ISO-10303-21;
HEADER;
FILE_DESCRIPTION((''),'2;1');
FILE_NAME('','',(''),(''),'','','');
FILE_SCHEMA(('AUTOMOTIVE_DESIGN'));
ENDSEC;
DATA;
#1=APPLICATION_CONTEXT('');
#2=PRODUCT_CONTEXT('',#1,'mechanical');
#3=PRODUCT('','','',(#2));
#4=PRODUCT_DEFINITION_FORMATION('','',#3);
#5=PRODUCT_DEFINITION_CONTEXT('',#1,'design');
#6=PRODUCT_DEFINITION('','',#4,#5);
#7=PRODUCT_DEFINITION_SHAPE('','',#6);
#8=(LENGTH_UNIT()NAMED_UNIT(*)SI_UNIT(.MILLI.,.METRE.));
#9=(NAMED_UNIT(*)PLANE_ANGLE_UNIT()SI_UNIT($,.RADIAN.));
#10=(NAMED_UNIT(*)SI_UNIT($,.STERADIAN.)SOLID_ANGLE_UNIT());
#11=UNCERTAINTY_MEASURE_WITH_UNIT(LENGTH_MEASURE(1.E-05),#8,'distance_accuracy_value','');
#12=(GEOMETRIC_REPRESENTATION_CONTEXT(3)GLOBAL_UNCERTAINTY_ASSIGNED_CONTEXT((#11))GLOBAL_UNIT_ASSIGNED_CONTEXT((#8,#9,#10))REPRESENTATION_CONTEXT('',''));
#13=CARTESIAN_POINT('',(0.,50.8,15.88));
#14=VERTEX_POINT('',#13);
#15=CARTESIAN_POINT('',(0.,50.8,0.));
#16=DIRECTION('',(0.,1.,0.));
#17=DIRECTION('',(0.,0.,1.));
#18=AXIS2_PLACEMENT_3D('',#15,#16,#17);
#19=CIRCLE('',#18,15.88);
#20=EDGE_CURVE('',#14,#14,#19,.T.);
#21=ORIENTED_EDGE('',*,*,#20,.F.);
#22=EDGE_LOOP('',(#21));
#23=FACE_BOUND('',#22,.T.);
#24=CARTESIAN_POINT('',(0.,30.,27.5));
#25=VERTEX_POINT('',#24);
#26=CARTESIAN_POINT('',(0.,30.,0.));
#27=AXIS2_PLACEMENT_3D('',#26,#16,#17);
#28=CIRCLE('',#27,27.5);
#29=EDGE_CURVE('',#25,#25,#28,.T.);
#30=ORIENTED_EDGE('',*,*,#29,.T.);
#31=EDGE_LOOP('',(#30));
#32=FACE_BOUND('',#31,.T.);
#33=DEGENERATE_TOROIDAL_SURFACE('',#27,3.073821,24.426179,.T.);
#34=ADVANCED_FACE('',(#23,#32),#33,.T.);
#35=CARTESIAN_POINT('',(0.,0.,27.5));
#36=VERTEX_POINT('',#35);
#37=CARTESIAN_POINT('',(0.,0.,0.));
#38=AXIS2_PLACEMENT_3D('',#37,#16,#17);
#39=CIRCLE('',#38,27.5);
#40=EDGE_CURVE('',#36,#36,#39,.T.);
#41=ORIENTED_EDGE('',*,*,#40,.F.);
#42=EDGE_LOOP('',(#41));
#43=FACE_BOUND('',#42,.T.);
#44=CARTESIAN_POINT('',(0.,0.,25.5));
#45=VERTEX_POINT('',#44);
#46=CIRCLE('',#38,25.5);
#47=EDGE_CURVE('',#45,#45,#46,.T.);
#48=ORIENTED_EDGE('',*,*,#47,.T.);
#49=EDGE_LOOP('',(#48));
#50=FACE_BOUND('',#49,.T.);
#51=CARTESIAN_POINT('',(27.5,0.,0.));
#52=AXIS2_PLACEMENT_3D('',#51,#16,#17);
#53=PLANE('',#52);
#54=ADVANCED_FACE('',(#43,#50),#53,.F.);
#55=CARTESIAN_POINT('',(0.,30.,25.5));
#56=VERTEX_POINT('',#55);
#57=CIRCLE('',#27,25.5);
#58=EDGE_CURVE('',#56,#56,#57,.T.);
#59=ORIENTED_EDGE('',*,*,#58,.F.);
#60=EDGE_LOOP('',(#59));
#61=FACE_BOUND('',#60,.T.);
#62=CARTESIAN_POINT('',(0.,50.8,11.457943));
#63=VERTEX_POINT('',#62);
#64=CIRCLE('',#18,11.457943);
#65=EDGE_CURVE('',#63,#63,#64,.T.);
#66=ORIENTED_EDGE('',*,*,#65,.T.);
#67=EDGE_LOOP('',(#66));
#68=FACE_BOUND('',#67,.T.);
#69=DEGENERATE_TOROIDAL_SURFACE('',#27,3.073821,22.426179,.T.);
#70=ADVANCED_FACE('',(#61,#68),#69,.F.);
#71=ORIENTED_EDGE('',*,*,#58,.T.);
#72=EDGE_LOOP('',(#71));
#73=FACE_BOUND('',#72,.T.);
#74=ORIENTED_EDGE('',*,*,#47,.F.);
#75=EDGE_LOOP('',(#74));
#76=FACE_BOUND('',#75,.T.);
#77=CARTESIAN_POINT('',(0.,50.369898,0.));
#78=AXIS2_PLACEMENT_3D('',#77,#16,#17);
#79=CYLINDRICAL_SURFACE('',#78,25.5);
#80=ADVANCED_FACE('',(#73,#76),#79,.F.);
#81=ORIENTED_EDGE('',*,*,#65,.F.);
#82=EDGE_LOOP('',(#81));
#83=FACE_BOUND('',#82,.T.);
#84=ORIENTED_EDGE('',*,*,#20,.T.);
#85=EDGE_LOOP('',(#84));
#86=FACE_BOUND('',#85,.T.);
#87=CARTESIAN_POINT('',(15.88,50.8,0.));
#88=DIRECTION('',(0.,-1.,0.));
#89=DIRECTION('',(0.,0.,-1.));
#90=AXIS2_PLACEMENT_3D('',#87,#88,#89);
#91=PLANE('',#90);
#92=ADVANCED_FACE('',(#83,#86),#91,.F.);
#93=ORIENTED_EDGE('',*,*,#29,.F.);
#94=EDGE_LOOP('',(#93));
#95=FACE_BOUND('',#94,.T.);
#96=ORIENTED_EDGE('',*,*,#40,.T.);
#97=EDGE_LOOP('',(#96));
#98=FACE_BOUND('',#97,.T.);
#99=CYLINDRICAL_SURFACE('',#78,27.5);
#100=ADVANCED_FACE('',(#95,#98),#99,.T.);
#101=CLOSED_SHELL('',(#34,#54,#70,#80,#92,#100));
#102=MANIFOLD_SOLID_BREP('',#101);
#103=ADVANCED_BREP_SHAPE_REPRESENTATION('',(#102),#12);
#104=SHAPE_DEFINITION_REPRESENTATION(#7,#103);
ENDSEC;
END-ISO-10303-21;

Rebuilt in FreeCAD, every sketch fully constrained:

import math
import FreeCAD as App
import Part
import Sketcher
from FreeCAD import Vector
Q = App.Units.Quantity

doc = App.newDocument("Part")
body = doc.addObject("PartDesign::Body", "Body")

# Sketch on XY plane
sketch1 = body.newObject("Sketcher::SketchObject", "Sketch")
sketch1.AttachmentSupport = (doc.getObject("XY_Plane"), [""])
sketch1.MapMode = "FlatFace"
sketch1.addGeometry(Part.LineSegment(Vector(27.5, 0, 0), Vector(27.5, 30, 0)), False)
sketch1.addGeometry(Part.ArcOfCircle(Part.Circle(Vector(3.1, 30, 0), Vector(0, 0, 1), 24.4), math.radians(0), math.radians(58)), False)
sketch1.addGeometry(Part.LineSegment(Vector(15.9, 50.8, 0), Vector(11.5, 50.8, 0)), False)
sketch1.addGeometry(Part.ArcOfCircle(Part.Circle(Vector(3.1, 30, 0), Vector(0, 0, 1), 22.4), math.radians(0), math.radians(68)), False)
sketch1.addGeometry(Part.LineSegment(Vector(25.5, 30, 0), Vector(25.5, 0, 0)), False)
sketch1.addGeometry(Part.LineSegment(Vector(25.5, 0, 0), Vector(27.5, 0, 0)), False)
sketch1.addConstraint(Sketcher.Constraint("Tangent", 0, 2, 1, 1))
sketch1.addConstraint(Sketcher.Constraint("Coincident", 1, 2, 2, 1))
sketch1.addConstraint(Sketcher.Constraint("Coincident", 2, 2, 3, 2))
sketch1.addConstraint(Sketcher.Constraint("Tangent", 3, 1, 4, 1))
sketch1.addConstraint(Sketcher.Constraint("Coincident", 4, 2, 5, 1))
sketch1.addConstraint(Sketcher.Constraint("Coincident", 5, 2, 0, 1))
sketch1.addConstraint(Sketcher.Constraint("Vertical", 0))
sketch1.addConstraint(Sketcher.Constraint("Horizontal", 2))
sketch1.addConstraint(Sketcher.Constraint("Vertical", 4))
sketch1.addConstraint(Sketcher.Constraint("Horizontal", 5))
sketch1.addConstraint(Sketcher.Constraint("Coincident", 3, 3, 1, 3))
sketch1.addConstraint(Sketcher.Constraint("PointOnObject", 4, 2, -1))
sketch1.addConstraint(Sketcher.Constraint("DistanceX", 5, 1, 5, 2, Q("2 mm")))
sketch1.addConstraint(Sketcher.Constraint("DistanceY", 0, 1, 0, 2, Q("30 mm")))
sketch1.addConstraint(Sketcher.Constraint("DistanceX", -1, 1, 0, 2, Q("27.5 mm")))
sketch1.addConstraint(Sketcher.Constraint("DistanceY", -1, 1, 1, 2, Q("50.8 mm")))
sketch1.addConstraint(Sketcher.Constraint("DistanceX", -1, 1, 1, 2, Q("15.88 mm")))
revolution = body.newObject("PartDesign::Revolution", "Revolution")
revolution.Profile = sketch1
revolution.ReferenceAxis = (sketch1, ["V_Axis"])
revolution.Angle = 360

doc.recompute()
